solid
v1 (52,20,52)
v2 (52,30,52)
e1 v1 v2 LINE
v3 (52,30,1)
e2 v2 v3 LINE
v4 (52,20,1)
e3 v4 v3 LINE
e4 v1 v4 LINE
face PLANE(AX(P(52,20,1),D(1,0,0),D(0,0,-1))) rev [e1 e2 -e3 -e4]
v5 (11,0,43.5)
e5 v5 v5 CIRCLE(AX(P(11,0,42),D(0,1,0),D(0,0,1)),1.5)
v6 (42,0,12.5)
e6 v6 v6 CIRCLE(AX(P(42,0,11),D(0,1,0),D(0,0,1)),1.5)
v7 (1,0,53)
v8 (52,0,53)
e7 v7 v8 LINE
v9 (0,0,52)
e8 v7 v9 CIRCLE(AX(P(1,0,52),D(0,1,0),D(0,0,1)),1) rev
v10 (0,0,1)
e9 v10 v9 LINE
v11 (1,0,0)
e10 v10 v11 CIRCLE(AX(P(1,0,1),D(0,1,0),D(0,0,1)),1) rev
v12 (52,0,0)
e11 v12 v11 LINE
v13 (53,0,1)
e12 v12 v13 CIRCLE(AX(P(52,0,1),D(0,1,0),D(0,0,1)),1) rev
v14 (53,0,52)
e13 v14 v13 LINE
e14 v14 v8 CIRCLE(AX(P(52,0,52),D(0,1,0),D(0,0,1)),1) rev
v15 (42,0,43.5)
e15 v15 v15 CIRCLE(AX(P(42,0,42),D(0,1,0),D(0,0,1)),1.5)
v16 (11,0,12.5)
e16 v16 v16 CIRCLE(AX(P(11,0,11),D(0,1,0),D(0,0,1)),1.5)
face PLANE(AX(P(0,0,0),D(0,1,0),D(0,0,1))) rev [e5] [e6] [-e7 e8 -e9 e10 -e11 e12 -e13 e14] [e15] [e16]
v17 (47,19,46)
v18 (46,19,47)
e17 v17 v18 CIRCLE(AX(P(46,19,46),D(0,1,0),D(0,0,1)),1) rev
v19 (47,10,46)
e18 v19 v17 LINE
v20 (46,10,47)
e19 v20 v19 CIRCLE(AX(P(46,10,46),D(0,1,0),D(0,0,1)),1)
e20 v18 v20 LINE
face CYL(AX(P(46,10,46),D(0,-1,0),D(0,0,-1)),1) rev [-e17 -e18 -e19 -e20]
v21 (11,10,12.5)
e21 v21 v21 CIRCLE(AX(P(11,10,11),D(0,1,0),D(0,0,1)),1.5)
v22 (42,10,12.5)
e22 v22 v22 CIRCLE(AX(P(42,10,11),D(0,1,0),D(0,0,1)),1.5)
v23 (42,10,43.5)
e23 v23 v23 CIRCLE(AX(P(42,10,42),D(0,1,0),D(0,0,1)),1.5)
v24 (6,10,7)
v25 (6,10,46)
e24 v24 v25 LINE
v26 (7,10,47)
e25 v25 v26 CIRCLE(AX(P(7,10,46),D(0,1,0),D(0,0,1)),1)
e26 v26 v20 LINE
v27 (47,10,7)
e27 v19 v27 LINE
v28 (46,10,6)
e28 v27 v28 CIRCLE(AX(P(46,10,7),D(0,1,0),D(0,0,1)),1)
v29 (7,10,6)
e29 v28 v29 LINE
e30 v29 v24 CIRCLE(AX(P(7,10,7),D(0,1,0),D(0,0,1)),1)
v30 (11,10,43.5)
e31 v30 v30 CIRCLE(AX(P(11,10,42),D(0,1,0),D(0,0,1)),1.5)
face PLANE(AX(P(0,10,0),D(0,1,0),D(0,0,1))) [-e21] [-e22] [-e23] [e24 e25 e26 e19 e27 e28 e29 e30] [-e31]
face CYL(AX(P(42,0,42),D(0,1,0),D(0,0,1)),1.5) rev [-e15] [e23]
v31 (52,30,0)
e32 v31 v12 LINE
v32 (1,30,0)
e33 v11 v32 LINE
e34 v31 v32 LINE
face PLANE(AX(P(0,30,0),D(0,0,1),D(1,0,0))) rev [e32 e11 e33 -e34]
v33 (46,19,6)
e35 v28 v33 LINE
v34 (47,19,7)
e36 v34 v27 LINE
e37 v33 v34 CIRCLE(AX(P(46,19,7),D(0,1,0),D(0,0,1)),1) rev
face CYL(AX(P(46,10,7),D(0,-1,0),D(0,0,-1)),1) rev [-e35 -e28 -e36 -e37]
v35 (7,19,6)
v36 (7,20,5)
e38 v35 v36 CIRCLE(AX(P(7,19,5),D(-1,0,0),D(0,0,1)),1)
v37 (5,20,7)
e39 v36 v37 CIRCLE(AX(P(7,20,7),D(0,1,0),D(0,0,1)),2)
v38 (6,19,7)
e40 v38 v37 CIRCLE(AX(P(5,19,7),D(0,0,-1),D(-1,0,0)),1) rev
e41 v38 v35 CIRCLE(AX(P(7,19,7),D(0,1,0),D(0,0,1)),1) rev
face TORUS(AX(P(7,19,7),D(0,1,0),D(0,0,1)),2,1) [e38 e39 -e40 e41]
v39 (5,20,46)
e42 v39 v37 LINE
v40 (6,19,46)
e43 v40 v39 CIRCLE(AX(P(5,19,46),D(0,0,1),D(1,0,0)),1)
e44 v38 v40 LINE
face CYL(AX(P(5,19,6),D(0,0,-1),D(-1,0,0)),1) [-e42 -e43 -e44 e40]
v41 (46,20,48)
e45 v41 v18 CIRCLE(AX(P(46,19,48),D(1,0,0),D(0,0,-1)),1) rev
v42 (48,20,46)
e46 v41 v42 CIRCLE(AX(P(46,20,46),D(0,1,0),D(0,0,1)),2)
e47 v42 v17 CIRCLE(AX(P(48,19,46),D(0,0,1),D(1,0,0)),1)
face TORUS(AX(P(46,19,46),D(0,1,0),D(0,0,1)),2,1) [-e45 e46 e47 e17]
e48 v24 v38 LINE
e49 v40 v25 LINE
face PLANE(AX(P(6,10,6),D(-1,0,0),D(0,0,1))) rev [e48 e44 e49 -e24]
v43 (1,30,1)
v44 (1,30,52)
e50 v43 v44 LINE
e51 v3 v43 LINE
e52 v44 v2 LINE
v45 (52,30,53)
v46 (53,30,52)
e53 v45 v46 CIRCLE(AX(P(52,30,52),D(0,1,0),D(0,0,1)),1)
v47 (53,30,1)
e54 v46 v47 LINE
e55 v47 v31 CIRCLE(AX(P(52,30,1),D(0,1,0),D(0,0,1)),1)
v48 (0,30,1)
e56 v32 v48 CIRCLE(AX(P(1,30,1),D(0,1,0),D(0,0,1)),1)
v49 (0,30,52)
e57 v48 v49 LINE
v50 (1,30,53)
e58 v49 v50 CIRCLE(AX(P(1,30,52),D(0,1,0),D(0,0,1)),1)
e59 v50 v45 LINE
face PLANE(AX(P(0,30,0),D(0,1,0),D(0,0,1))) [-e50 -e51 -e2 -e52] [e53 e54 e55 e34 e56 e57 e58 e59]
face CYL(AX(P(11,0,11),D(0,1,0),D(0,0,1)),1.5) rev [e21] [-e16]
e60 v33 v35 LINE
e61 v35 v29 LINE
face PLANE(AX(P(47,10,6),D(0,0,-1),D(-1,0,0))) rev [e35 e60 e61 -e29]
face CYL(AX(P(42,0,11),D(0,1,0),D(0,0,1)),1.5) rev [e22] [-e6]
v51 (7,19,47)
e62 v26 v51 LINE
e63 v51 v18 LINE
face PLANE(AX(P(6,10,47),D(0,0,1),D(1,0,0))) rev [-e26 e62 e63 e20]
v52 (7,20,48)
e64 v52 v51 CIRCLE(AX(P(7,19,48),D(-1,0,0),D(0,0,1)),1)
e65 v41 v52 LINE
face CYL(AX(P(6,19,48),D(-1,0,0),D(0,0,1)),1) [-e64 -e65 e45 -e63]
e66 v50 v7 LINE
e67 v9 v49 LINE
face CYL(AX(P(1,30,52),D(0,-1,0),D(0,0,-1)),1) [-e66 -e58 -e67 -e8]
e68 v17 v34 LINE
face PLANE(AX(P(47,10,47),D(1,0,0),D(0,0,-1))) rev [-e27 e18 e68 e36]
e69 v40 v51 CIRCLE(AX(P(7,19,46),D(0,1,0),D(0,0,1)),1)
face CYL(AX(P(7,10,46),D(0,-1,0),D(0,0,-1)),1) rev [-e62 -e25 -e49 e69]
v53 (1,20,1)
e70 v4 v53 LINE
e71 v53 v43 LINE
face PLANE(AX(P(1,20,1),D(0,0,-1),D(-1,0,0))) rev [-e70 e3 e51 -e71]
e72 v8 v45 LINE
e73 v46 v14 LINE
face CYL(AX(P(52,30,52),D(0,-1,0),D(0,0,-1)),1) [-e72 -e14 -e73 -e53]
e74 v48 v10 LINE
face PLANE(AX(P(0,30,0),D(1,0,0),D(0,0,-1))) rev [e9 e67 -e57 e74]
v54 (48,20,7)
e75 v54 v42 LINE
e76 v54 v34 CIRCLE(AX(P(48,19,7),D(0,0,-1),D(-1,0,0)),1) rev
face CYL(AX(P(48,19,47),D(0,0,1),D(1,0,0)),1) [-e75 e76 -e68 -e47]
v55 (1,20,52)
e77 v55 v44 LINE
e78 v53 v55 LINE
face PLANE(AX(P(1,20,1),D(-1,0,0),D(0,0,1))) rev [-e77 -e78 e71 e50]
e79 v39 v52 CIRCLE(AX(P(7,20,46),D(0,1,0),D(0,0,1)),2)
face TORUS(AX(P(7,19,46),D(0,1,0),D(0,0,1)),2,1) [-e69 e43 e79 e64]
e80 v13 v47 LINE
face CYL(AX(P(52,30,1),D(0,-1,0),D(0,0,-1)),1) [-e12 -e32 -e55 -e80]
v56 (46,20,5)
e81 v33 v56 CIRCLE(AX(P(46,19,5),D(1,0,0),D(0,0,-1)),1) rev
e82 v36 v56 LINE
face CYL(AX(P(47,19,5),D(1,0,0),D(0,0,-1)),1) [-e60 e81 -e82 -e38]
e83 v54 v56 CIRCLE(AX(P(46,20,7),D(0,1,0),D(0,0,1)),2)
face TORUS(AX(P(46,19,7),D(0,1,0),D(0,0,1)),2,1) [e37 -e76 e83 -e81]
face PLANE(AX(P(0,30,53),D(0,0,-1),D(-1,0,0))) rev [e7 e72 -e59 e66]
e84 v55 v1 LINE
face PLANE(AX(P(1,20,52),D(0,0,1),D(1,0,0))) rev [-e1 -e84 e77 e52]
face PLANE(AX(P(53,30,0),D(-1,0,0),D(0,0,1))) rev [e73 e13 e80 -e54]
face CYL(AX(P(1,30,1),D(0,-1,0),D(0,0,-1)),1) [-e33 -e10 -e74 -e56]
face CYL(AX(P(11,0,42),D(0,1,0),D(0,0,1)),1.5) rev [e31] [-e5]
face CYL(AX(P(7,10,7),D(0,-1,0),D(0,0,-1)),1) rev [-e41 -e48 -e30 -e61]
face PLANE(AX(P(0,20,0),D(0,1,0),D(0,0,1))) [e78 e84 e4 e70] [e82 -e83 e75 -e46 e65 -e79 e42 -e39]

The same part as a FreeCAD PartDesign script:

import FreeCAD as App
import Part
import Sketcher
from FreeCAD import Vector


def edges_at(feature, points):
    """Names of the edges that pass closest to the given points."""
    edges = feature.Shape.Edges
    near = lambda p: min(range(len(edges)), key=lambda i: edges[i].distToShape(Part.Vertex(*p))[0])
    return sorted({f"Edge{near(p) + 1}" for p in points})

doc = App.newDocument("Part")
body = doc.addObject("PartDesign::Body", "Body")

# Sketch on XZ plane
sketch1 = body.newObject("Sketcher::SketchObject", "Sketch")
sketch1.AttachmentSupport = (doc.getObject("XZ_Plane"), [""])
sketch1.MapMode = "FlatFace"
sketch1.addGeometry([
    Part.LineSegment(Vector(0, 0, 0), Vector(0, 53, 0)),
    Part.LineSegment(Vector(0, 53, 0), Vector(53, 53, 0)),
    Part.LineSegment(Vector(53, 53, 0), Vector(53, 0, 0)),
    Part.LineSegment(Vector(53, 0, 0), Vector(0, 0, 0)),
], False)
sketch1.addConstraint([
    Sketcher.Constraint("Coincident", 0, 2, 1, 1),
    Sketcher.Constraint("Coincident", 1, 2, 2, 1),
    Sketcher.Constraint("Coincident", 2, 2, 3, 1),
    Sketcher.Constraint("Coincident", 3, 2, 0, 1),
    Sketcher.Constraint("Vertical", 0),
    Sketcher.Constraint("Horizontal", 1),
    Sketcher.Constraint("Vertical", 2),
    Sketcher.Constraint("Horizontal", 3),
    Sketcher.Constraint("Coincident", 3, 2, -1, 1),
    Sketcher.Constraint("Equal", 3, 0),
    Sketcher.Constraint("DistanceX", 1, 1, 1, 2, 53.0),
])
pad1 = body.newObject("PartDesign::Pad", "Pad")
pad1.Profile = sketch1
pad1.Length = 30
pad1.Reversed = True

# Sketch on XZ plane
sketch2 = body.newObject("Sketcher::SketchObject", "Sketch001")
sketch2.AttachmentSupport = (doc.getObject("XZ_Plane"), [""])
sketch2.MapMode = "FlatFace"
sketch2.AttachmentOffset = App.Placement(Vector(0, 0, -30), App.Rotation())
sketch2.addGeometry([
    Part.LineSegment(Vector(1, 1, 0), Vector(1, 52, 0)),
    Part.LineSegment(Vector(1, 52, 0), Vector(52, 52, 0)),
    Part.LineSegment(Vector(52, 52, 0), Vector(52, 1, 0)),
    Part.LineSegment(Vector(52, 1, 0), Vector(1, 1, 0)),
], False)
sketch2.addConstraint([
    Sketcher.Constraint("Coincident", 0, 2, 1, 1),
    Sketcher.Constraint("Coincident", 1, 2, 2, 1),
    Sketcher.Constraint("Coincident", 2, 2, 3, 1),
    Sketcher.Constraint("Coincident", 3, 2, 0, 1),
    Sketcher.Constraint("Vertical", 0),
    Sketcher.Constraint("Horizontal", 1),
    Sketcher.Constraint("Vertical", 2),
    Sketcher.Constraint("Horizontal", 3),
    Sketcher.Constraint("Equal", 3, 0),
    Sketcher.Constraint("DistanceX", 1, 1, 1, 2, 51.0),
    Sketcher.Constraint("DistanceX", -1, 1, 0, 2, 1.0),
    Sketcher.Constraint("DistanceY", -1, 1, 0, 2, 52.0),
])
pocket1 = body.newObject("PartDesign::Pocket", "Pocket")
pocket1.Profile = sketch2
pocket1.Length = 10
pocket1.Reversed = True

# Sketch on XZ plane
sketch3 = body.newObject("Sketcher::SketchObject", "Sketch002")
sketch3.AttachmentSupport = (doc.getObject("XZ_Plane"), [""])
sketch3.MapMode = "FlatFace"
sketch3.AttachmentOffset = App.Placement(Vector(0, 0, -20), App.Rotation())
sketch3.addGeometry([
    Part.LineSegment(Vector(6, 6, 0), Vector(6, 47, 0)),
    Part.LineSegment(Vector(6, 47, 0), Vector(47, 47, 0)),
    Part.LineSegment(Vector(47, 47, 0), Vector(47, 6, 0)),
    Part.LineSegment(Vector(47, 6, 0), Vector(6, 6, 0)),
], False)
sketch3.addConstraint([
    Sketcher.Constraint("Coincident", 0, 2, 1, 1),
    Sketcher.Constraint("Coincident", 1, 2, 2, 1),
    Sketcher.Constraint("Coincident", 2, 2, 3, 1),
    Sketcher.Constraint("Coincident", 3, 2, 0, 1),
    Sketcher.Constraint("Vertical", 0),
    Sketcher.Constraint("Horizontal", 1),
    Sketcher.Constraint("Vertical", 2),
    Sketcher.Constraint("Horizontal", 3),
    Sketcher.Constraint("Equal", 3, 0),
    Sketcher.Constraint("DistanceX", 1, 1, 1, 2, 41.0),
    Sketcher.Constraint("DistanceX", -1, 1, 0, 2, 6.0),
    Sketcher.Constraint("DistanceY", -1, 1, 0, 2, 47.0),
])
pocket2 = body.newObject("PartDesign::Pocket", "Pocket001")
pocket2.Profile = sketch3
pocket2.Length = 10
pocket2.Reversed = True

# Sketch on XZ plane
sketch4 = body.newObject("Sketcher::SketchObject", "Sketch003")
sketch4.AttachmentSupport = (doc.getObject("XZ_Plane"), [""])
sketch4.MapMode = "FlatFace"
sketch4.AttachmentOffset = App.Placement(Vector(0, 0, -10), App.Rotation())
sketch4.addGeometry([
    Part.Circle(Vector(11, 11, 0), Vector(0, 0, 1), 1.5),
    Part.Circle(Vector(42, 11, 0), Vector(0, 0, 1), 1.5),
    Part.Circle(Vector(42, 42, 0), Vector(0, 0, 1), 1.5),
    Part.Circle(Vector(11, 42, 0), Vector(0, 0, 1), 1.5),
], False)
sketch4.addConstraint([
    Sketcher.Constraint("Equal", 0, 1),
    Sketcher.Constraint("Equal", 1, 2),
    Sketcher.Constraint("Equal", 2, 3),
    Sketcher.Constraint("Horizontal", 0, 3, 1, 3),
    Sketcher.Constraint("Horizontal", 2, 3, 3, 3),
    Sketcher.Constraint("Vertical", 1, 3, 2, 3),
    Sketcher.Constraint("Vertical", 0, 3, 3, 3),
    Sketcher.Constraint("Diameter", 0, 3.0),
    Sketcher.Constraint("DistanceX", -1, 1, 0, 3, 11.0),
    Sketcher.Constraint("DistanceY", -1, 1, 0, 3, 11.0),
    Sketcher.Constraint("DistanceX", -1, 1, 1, 3, 42.0),
    Sketcher.Constraint("DistanceY", -1, 1, 2, 3, 42.0),
])
pocket3 = body.newObject("PartDesign::Pocket", "Pocket002")
pocket3.Profile = sketch4
pocket3.Type = "ThroughAll"
pocket3.Reversed = True
doc.recompute()

fillet = body.newObject("PartDesign::Fillet", "Fillet")
fillet.Base = (pocket3, edges_at(pocket3, [
    (6, 15, 6),
    (47, 15, 6),
    (47, 15, 47),
    (6, 15, 47),
    (26.5, 20, 6),
    (6, 20, 26.5),
    (26.5, 20, 47),
    (47, 20, 26.5),
    (0, 15, 0),
    (53, 15, 0),
    (53, 15, 53),
    (0, 15, 53),
]))
fillet.Radius = 1

doc.recompute()
